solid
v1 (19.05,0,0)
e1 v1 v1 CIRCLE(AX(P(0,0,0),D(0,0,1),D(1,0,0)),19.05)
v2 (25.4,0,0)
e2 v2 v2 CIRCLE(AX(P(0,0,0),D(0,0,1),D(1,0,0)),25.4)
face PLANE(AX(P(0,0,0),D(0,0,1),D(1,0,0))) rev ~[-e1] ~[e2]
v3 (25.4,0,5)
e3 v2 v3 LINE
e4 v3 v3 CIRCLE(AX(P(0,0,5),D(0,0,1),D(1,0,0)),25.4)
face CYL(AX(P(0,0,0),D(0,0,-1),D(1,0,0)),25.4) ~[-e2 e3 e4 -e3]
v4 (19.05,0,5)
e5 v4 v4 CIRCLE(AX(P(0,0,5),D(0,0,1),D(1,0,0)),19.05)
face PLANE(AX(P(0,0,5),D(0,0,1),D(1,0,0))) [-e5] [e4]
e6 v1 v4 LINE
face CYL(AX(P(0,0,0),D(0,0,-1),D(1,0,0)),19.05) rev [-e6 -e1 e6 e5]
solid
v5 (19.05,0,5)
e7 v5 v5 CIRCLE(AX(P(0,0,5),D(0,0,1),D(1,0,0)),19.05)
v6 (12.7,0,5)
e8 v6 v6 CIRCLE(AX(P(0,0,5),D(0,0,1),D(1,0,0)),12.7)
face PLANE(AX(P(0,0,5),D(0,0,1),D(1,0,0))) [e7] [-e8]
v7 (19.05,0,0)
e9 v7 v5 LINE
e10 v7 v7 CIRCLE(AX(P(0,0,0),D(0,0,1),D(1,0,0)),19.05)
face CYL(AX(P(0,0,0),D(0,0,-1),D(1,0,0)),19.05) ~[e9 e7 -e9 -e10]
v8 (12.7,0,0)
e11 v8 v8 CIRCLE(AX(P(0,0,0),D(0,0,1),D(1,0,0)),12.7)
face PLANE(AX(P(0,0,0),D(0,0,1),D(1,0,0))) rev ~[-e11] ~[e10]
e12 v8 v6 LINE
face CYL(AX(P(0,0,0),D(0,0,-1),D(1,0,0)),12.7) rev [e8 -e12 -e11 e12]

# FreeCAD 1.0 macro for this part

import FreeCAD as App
import Part
import Sketcher

V = App.Vector
Q = App.Units.Quantity

doc = App.newDocument("Part")
body = doc.addObject("PartDesign::Body", "Body")

# Sketch on XY plane
sketch1 = body.newObject("Sketcher::SketchObject", "Sketch")
sketch1.AttachmentSupport = (doc.getObject("XY_Plane"), [""])
sketch1.MapMode = "FlatFace"
sketch1.addGeometry([
    Part.Circle(V(0, 0, 0), V(0, 0, 1), 25),
    Part.Circle(V(0, 0, 0), V(0, 0, 1), 19),
], False)
sketch1.addConstraint([
    Sketcher.Constraint("Coincident", 0, 3, -1, 1),
    Sketcher.Constraint("Coincident", 1, 3, -1, 1),
    Sketcher.Constraint("Diameter", 0, Q("2 in")),
    Sketcher.Constraint("Diameter", 1, Q("1.5 in")),
])
pad1 = body.newObject("PartDesign::Pad", "Pad")
pad1.Profile = sketch1
pad1.Length = 5
body2 = doc.addObject("PartDesign::Body", "Body001")

# Sketch on XY plane
sketch2 = body2.newObject("Sketcher::SketchObject", "Sketch001")
sketch2.AttachmentSupport = (doc.getObject("XY_Plane001"), [""])
sketch2.MapMode = "FlatFace"
sketch2.addGeometry([
    Part.Circle(V(0, 0, 0), V(0, 0, 1), 19),
    Part.Circle(V(0, 0, 0), V(0, 0, 1), 13),
], False)
sketch2.addConstraint([
    Sketcher.Constraint("Coincident", 0, 3, -1, 1),
    Sketcher.Constraint("Coincident", 1, 3, -1, 1),
    Sketcher.Constraint("Diameter", 1, Q("1 in")),
    Sketcher.Constraint("Diameter", 0, Q("1.5 in")),
])
pad2 = body2.newObject("PartDesign::Pad", "Pad001")
pad2.Profile = sketch2
pad2.Length = 5

doc.recompute()
